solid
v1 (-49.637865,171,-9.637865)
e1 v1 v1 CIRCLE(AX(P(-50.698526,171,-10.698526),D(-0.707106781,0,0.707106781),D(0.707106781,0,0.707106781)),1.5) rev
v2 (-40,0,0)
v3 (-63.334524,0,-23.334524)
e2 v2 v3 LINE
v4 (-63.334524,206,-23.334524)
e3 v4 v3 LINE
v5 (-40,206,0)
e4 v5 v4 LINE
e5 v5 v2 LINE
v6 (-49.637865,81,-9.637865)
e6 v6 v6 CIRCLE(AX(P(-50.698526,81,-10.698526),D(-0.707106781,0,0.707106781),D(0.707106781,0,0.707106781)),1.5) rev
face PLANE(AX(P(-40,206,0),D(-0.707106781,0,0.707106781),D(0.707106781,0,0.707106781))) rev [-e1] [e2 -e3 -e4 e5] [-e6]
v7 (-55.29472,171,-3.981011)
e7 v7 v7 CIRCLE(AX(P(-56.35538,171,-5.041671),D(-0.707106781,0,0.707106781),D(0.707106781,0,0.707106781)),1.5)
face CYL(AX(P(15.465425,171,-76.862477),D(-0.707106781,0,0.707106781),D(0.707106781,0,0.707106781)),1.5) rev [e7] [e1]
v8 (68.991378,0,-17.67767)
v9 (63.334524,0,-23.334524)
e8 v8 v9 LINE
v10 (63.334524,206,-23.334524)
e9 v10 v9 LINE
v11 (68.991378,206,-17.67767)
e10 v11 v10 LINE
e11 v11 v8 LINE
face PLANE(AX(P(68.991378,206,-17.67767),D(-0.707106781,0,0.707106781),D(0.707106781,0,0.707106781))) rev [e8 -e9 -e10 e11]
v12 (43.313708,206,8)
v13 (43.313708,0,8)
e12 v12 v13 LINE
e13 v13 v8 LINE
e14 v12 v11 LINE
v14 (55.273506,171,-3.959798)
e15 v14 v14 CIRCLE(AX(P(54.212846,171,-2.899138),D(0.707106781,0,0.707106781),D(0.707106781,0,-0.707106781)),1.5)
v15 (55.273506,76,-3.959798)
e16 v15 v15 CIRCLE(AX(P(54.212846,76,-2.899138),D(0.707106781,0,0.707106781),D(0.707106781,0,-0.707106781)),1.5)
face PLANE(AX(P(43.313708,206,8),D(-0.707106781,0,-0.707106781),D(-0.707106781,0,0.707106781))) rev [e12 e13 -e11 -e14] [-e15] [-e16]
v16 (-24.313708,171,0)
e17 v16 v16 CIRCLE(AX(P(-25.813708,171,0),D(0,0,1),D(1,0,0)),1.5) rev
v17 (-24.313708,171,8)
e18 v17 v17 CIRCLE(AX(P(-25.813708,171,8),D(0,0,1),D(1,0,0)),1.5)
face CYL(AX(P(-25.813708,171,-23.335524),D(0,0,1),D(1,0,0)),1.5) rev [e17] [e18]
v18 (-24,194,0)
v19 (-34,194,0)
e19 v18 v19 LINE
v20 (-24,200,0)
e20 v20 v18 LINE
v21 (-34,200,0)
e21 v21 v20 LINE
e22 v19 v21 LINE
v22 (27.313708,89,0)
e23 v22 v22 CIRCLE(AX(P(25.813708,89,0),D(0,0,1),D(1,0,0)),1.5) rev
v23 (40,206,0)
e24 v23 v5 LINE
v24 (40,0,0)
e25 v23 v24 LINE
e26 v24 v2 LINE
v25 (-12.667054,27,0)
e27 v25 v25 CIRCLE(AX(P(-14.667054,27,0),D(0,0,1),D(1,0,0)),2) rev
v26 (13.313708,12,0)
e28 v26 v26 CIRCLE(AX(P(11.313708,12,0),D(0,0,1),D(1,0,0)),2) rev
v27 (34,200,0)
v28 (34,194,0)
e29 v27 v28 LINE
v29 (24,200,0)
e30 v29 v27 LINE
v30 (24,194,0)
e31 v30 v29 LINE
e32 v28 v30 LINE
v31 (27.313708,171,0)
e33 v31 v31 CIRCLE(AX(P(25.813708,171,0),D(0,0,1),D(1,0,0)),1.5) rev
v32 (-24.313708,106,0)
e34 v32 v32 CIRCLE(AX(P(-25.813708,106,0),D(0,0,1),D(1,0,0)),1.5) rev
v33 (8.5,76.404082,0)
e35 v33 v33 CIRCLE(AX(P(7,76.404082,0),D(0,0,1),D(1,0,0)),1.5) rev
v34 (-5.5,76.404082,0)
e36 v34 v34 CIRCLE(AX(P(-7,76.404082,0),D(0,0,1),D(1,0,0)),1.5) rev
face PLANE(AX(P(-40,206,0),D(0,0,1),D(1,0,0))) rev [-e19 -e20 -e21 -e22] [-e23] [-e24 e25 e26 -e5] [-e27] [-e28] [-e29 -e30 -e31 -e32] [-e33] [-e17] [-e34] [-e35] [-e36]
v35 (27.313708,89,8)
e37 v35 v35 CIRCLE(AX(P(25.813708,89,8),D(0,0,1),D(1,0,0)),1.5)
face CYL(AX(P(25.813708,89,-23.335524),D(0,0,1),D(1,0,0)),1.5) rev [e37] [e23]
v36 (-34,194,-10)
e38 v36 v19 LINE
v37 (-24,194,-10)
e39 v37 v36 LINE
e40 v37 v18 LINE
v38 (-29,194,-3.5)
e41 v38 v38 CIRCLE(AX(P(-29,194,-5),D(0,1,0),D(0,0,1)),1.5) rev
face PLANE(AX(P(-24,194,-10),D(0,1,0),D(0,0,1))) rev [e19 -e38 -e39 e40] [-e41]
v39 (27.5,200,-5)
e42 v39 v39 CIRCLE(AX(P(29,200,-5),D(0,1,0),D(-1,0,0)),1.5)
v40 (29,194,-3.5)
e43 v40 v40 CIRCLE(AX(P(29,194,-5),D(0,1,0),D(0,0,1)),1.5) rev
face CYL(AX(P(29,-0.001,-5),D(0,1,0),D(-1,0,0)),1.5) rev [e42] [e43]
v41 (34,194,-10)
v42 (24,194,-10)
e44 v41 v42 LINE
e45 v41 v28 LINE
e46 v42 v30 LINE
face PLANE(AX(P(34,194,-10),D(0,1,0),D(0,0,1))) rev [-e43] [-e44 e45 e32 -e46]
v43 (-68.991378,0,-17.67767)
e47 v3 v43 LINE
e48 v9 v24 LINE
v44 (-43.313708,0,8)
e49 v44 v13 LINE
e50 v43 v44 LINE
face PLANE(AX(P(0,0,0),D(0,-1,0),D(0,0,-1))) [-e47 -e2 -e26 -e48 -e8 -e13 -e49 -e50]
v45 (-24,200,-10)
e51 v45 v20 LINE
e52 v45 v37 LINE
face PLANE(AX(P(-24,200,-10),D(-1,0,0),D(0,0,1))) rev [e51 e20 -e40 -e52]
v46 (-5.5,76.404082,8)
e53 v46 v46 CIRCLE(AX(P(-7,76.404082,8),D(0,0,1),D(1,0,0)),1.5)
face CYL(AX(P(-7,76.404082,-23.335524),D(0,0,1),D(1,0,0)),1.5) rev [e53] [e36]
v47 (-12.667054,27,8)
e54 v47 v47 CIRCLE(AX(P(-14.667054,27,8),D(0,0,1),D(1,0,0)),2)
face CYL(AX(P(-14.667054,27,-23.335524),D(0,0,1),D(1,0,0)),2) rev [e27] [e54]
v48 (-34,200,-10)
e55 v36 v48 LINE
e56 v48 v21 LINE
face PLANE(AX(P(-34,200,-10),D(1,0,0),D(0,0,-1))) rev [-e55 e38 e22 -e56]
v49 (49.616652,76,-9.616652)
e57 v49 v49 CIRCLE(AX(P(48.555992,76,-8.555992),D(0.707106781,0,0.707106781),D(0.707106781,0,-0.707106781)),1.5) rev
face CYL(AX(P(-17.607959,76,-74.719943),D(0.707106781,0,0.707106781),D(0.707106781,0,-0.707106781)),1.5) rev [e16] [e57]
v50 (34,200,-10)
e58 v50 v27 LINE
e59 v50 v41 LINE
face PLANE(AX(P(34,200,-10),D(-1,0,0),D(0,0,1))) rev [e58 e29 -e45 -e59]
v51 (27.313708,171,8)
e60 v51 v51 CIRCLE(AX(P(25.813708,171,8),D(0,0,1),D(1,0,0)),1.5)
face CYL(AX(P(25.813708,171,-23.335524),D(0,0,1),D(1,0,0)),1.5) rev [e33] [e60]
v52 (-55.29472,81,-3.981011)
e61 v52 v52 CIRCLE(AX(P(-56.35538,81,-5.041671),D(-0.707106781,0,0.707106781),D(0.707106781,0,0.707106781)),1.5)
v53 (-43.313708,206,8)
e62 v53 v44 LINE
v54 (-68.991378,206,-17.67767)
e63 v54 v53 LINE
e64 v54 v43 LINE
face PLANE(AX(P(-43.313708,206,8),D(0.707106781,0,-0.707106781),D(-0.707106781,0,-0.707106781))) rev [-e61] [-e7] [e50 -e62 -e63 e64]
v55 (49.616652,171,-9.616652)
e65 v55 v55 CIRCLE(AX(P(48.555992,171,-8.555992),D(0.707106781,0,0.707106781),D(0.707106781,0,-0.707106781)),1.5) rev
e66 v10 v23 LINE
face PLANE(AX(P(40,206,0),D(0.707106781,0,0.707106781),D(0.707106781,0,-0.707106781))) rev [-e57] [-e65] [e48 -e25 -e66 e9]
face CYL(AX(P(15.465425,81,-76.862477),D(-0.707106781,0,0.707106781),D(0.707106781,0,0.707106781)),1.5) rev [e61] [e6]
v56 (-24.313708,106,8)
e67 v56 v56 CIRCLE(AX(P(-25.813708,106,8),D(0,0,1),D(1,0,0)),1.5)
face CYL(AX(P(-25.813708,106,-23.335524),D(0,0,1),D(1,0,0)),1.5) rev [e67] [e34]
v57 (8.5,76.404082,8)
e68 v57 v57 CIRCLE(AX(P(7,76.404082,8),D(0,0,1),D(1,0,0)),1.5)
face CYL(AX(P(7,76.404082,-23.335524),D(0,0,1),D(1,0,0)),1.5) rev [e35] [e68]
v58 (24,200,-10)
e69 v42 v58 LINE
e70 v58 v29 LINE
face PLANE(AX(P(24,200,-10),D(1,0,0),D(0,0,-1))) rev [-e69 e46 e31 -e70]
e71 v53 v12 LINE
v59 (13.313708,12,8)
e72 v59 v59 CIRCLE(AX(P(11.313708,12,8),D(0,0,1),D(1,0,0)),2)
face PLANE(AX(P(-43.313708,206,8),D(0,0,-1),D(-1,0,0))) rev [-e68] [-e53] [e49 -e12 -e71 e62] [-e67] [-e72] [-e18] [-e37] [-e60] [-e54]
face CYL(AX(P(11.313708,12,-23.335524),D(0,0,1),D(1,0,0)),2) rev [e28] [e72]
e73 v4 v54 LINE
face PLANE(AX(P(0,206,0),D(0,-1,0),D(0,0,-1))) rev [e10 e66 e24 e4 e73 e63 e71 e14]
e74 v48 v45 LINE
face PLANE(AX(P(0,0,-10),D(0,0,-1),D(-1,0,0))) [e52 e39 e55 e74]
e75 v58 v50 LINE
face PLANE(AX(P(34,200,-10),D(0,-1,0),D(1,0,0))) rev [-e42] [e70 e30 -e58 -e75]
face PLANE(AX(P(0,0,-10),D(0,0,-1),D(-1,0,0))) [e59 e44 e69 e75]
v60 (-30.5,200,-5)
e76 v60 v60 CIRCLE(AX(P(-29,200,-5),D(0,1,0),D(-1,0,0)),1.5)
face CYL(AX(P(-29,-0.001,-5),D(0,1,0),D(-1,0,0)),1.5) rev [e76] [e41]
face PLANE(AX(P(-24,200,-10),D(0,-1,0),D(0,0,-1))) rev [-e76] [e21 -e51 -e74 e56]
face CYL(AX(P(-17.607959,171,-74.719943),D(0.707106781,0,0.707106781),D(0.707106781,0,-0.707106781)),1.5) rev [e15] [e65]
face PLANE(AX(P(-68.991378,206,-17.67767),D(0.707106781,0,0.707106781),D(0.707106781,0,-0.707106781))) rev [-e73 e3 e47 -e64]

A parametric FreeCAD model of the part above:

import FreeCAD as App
import Part
import Sketcher

V = App.Vector
Q = App.Units.Quantity

doc = App.newDocument("Part")
params = doc.addObject("Spreadsheet::Sheet", "Params")
for row, (alias, value) in enumerate([
    ("sketch1_width", "80 mm"),
    ("sketch1_length", "33 mm"),
    ("sketch1_length2", "8 mm"),
    ("pad1_length", "206 mm"),
    ("sketch2_width", "10 mm"),
    ("sketch2_height", "6 mm"),
    ("pad2_length", "10 mm"),
    ("sketch3_diameter", "3 mm"),
    ("sketch4_diameter", "3 mm"),
    ("sketch5_diameter", "4 mm"),
    ("sketch6_diameter", "4 mm"),
    ("sketch7_diameter", "3 mm"),
    ("sketch8_diameter", "3 mm"),
    ("sketch9_diameter", "3 mm"),
    ("sketch10_diameter", "3 mm"),
    ("sketch11_diameter", "3 mm"),
    ("sketch12_diameter", "3 mm"),
    ("sketch13_diameter", "3 mm"),
    ("sketch14_diameter", "3 mm"),
    ("sketch15_diameter", "3 mm"),
    ("sketch16_diameter", "3 mm"),
], start=1):
    params.set(f"A{row}", alias)
    params.set(f"B{row}", "=" + value)
    params.setAlias(f"B{row}", alias)

body = doc.addObject("PartDesign::Body", "Body")

# Sketch on XZ plane
sketch1 = body.newObject("Sketcher::SketchObject", "Sketch")
sketch1.AttachmentSupport = (doc.getObject("XZ_Plane"), [""])
sketch1.MapMode = "FlatFace"
sketch1.addGeometry(Part.LineSegment(V(40, 0, 0), V(-40, 0, 0)), False)
sketch1.addGeometry(Part.LineSegment(V(-40, 0, 0), V(-63, -23, 0)), False)
sketch1.addGeometry(Part.LineSegment(V(-63, -23, 0), V(-69, -18, 0)), False)
sketch1.addGeometry(Part.LineSegment(V(-69, -18, 0), V(-43, 8, 0)), False)
sketch1.addGeometry(Part.LineSegment(V(-43, 8, 0), V(43, 8, 0)), False)
sketch1.addGeometry(Part.LineSegment(V(43, 8, 0), V(69, -18, 0)), False)
sketch1.addGeometry(Part.LineSegment(V(69, -18, 0), V(63, -23, 0)), False)
sketch1.addGeometry(Part.LineSegment(V(63, -23, 0), V(40, 0, 0)), False)
sketch1.addConstraint(Sketcher.Constraint("Coincident", 0, 2, 1, 1))
sketch1.addConstraint(Sketcher.Constraint("Coincident", 1, 2, 2, 1))
sketch1.addConstraint(Sketcher.Constraint("Coincident", 2, 2, 3, 1))
sketch1.addConstraint(Sketcher.Constraint("Coincident", 3, 2, 4, 1))
sketch1.addConstraint(Sketcher.Constraint("Coincident", 4, 2, 5, 1))
sketch1.addConstraint(Sketcher.Constraint("Coincident", 5, 2, 6, 1))
sketch1.addConstraint(Sketcher.Constraint("Coincident", 6, 2, 7, 1))
sketch1.addConstraint(Sketcher.Constraint("Coincident", 7, 2, 0, 1))
sketch1.addConstraint(Sketcher.Constraint("Horizontal", 0))
sketch1.addConstraint(Sketcher.Constraint("Horizontal", 4))
sketch1.addConstraint(Sketcher.Constraint("Symmetric", 0, 2, 7, 2, -1, 1))
sketch1.addConstraint(Sketcher.Constraint("Symmetric", 2, 2, 5, 2, -2))
sketch1.addConstraint(Sketcher.Constraint("Symmetric", 1, 2, 6, 2, -2))
sketch1.addConstraint(Sketcher.Constraint("Perpendicular", 1, 2))
sketch1.addConstraint(Sketcher.Constraint("Perpendicular", 2, 3))
sketch1.addConstraint(Sketcher.Constraint("Perpendicular", 3, 5))
sketch1.addConstraint(Sketcher.Constraint("Perpendicular", 5, 6))
sketch1.addConstraint(Sketcher.Constraint("DistanceX", 0, 2, 0, 1, Q("80 mm")))
sketch1.addConstraint(Sketcher.Constraint("Distance", 1, Q("33 mm")))
sketch1.addConstraint(Sketcher.Constraint("Distance", 2, Q("8 mm")))
sketch1.addConstraint(Sketcher.Constraint("DistanceY", -1, 1, 3, 2, Q("8 mm")))
sketch1.setExpression("Constraints[17]", "Params.sketch1_width")
sketch1.setExpression("Constraints[18]", "Params.sketch1_length")
sketch1.setExpression("Constraints[19]", "Params.sketch1_length2")
pad1 = body.newObject("PartDesign::Pad", "Pad")
pad1.Profile = sketch1
pad1.setExpression("Length", "Params.pad1_length")
pad1.Reversed = True

# Sketch on XY plane
sketch2 = body.newObject("Sketcher::SketchObject", "Sketch001")
sketch2.AttachmentSupport = (doc.getObject("XY_Plane"), [""])
sketch2.MapMode = "FlatFace"
sketch2.addGeometry(Part.LineSegment(V(34, 200, 0), V(34, 194, 0)), False)
sketch2.addGeometry(Part.LineSegment(V(34, 194, 0), V(24, 194, 0)), False)
sketch2.addGeometry(Part.LineSegment(V(24, 194, 0), V(24, 200, 0)), False)
sketch2.addGeometry(Part.LineSegment(V(24, 200, 0), V(34, 200, 0)), False)
sketch2.addGeometry(Part.LineSegment(V(-24, 200, 0), V(-24, 194, 0)), False)
sketch2.addGeometry(Part.LineSegment(V(-24, 194, 0), V(-34, 194, 0)), False)
sketch2.addGeometry(Part.LineSegment(V(-34, 194, 0), V(-34, 200, 0)), False)
sketch2.addGeometry(Part.LineSegment(V(-34, 200, 0), V(-24, 200, 0)), False)
sketch2.addConstraint(Sketcher.Constraint("Coincident", 0, 2, 1, 1))
sketch2.addConstraint(Sketcher.Constraint("Coincident", 1, 2, 2, 1))
sketch2.addConstraint(Sketcher.Constraint("Coincident", 2, 2, 3, 1))
sketch2.addConstraint(Sketcher.Constraint("Coincident", 3, 2, 0, 1))
sketch2.addConstraint(Sketcher.Constraint("Coincident", 4, 2, 5, 1))
sketch2.addConstraint(Sketcher.Constraint("Coincident", 5, 2, 6, 1))
sketch2.addConstraint(Sketcher.Constraint("Coincident", 6, 2, 7, 1))
sketch2.addConstraint(Sketcher.Constraint("Coincident", 7, 2, 4, 1))
sketch2.addConstraint(Sketcher.Constraint("Vertical", 0))
sketch2.addConstraint(Sketcher.Constraint("Horizontal", 1))
sketch2.addConstraint(Sketcher.Constraint("Vertical", 2))
sketch2.addConstraint(Sketcher.Constraint("Horizontal", 3))
sketch2.addConstraint(Sketcher.Constraint("Vertical", 4))
sketch2.addConstraint(Sketcher.Constraint("Horizontal", 5))
sketch2.addConstraint(Sketcher.Constraint("Vertical", 6))
sketch2.addConstraint(Sketcher.Constraint("Horizontal", 7))
sketch2.addConstraint(Sketcher.Constraint("Symmetric", 1, 2, 4, 2, -2))
sketch2.addConstraint(Sketcher.Constraint("Symmetric", 3, 2, 6, 2, -2))
sketch2.addConstraint(Sketcher.Constraint("DistanceX", 1, 2, 1, 1, Q("10 mm")))
sketch2.addConstraint(Sketcher.Constraint("DistanceY", 0, 2, 0, 1, Q("6 mm")))
sketch2.addConstraint(Sketcher.Constraint("DistanceX", -1, 1, 0, 2, Q("34 mm")))
sketch2.addConstraint(Sketcher.Constraint("DistanceY", -1, 1, 0, 2, Q("194 mm")))
sketch2.setExpression("Constraints[18]", "Params.sketch2_width")
sketch2.setExpression("Constraints[19]", "Params.sketch2_height")
pad2 = body.newObject("PartDesign::Pad", "Pad001")
pad2.Profile = sketch2
pad2.setExpression("Length", "Params.pad2_length")
pad2.Reversed = True

# Sketch on XZ plane
sketch3 = body.newObject("Sketcher::SketchObject", "Sketch002")
sketch3.AttachmentSupport = (doc.getObject("XZ_Plane"), [""])
sketch3.MapMode = "FlatFace"
sketch3.AttachmentOffset = App.Placement(V(0, 0, -200), App.Rotation())
sketch3.addGeometry(Part.Circle(V(-29, -5, 0), V(0, 0, 1), 1.5), False)
sketch3.addConstraint(Sketcher.Constraint("Diameter", 0, Q("3 mm")))
sketch3.addConstraint(Sketcher.Constraint("DistanceX", 0, 3, -1, 1, Q("29 mm")))
sketch3.addConstraint(Sketcher.Constraint("DistanceY", 0, 3, -1, 1, Q("5 mm")))
sketch3.setExpression("Constraints[0]", "Params.sketch3_diameter")
pocket1 = body.newObject("PartDesign::Pocket", "Pocket")
pocket1.Profile = sketch3
pocket1.Type = "UpToFirst"
pocket1.Reversed = True

# Sketch on XZ plane
sketch4 = body.newObject("Sketcher::SketchObject", "Sketch003")
sketch4.AttachmentSupport = (doc.getObject("XZ_Plane"), [""])
sketch4.MapMode = "FlatFace"
sketch4.AttachmentOffset = App.Placement(V(0, 0, -200), App.Rotation())
sketch4.addGeometry(Part.Circle(V(29, -5, 0), V(0, 0, 1), 1.5), False)
sketch4.addConstraint(Sketcher.Constraint("Diameter", 0, Q("3 mm")))
sketch4.addConstraint(Sketcher.Constraint("DistanceX", -1, 1, 0, 3, Q("29 mm")))
sketch4.addConstraint(Sketcher.Constraint("DistanceY", 0, 3, -1, 1, Q("5 mm")))
sketch4.setExpression("Constraints[0]", "Params.sketch4_diameter")
pocket2 = body.newObject("PartDesign::Pocket", "Pocket001")
pocket2.Profile = sketch4
pocket2.Type = "UpToFirst"
pocket2.Reversed = True

# Sketch on XY plane
sketch5 = body.newObject("Sketcher::SketchObject", "Sketch004")
sketch5.AttachmentSupport = (doc.getObject("XY_Plane"), [""])
sketch5.MapMode = "FlatFace"
sketch5.AttachmentOffset = App.Placement(V(0, 0, 8), App.Rotation())
sketch5.addGeometry(Part.Circle(V(-14.7, 27, 0), V(0, 0, 1), 2), False)
sketch5.addConstraint(Sketcher.Constraint("Diameter", 0, Q("4 mm")))
sketch5.addConstraint(Sketcher.Constraint("DistanceY", -1, 1, 0, 3, Q("27 mm")))
sketch5.addConstraint(Sketcher.Constraint("DistanceX", 0, 3, -1, 1, Q("14.667054 mm")))
sketch5.setExpression("Constraints[0]", "Params.sketch5_diameter")
pocket3 = body.newObject("PartDesign::Pocket", "Pocket002")
pocket3.Profile = sketch5
pocket3.Type = "UpToFirst"

# Sketch on XY plane
sketch6 = body.newObject("Sketcher::SketchObject", "Sketch005")
sketch6.AttachmentSupport = (doc.getObject("XY_Plane"), [""])
sketch6.MapMode = "FlatFace"
sketch6.AttachmentOffset = App.Placement(V(0, 0, 8), App.Rotation())
sketch6.addGeometry(Part.Circle(V(11.3, 12, 0), V(0, 0, 1), 2), False)
sketch6.addConstraint(Sketcher.Constraint("Diameter", 0, Q("4 mm")))
sketch6.addConstraint(Sketcher.Constraint("DistanceY", -1, 1, 0, 3, Q("12 mm")))
sketch6.addConstraint(Sketcher.Constraint("DistanceX", -1, 1, 0, 3, Q("11.313708 mm")))
sketch6.setExpression("Constraints[0]", "Params.sketch6_diameter")
pocket4 = body.newObject("PartDesign::Pocket", "Pocket003")
pocket4.Profile = sketch6
pocket4.Type = "UpToFirst"

# Sketch on XY plane
sketch7 = body.newObject("Sketcher::SketchObject", "Sketch006")
sketch7.AttachmentSupport = (doc.getObject("XY_Plane"), [""])
sketch7.MapMode = "FlatFace"
sketch7.AttachmentOffset = App.Placement(V(0, 0, 8), App.Rotation())
sketch7.addGeometry(Part.Circle(V(-7, 76.4, 0), V(0, 0, 1), 1.5), False)
sketch7.addConstraint(Sketcher.Constraint("Diameter", 0, Q("3 mm")))
sketch7.addConstraint(Sketcher.Constraint("DistanceX", 0, 3, -1, 1, Q("7 mm")))
sketch7.addConstraint(Sketcher.Constraint("DistanceY", -1, 1, 0, 3, Q("76.404082 mm")))
sketch7.setExpression("Constraints[0]", "Params.sketch7_diameter")
pocket5 = body.newObject("PartDesign::Pocket", "Pocket004")
pocket5.Profile = sketch7
pocket5.Type = "UpToFirst"

# Sketch on XY plane
sketch8 = body.newObject("Sketcher::SketchObject", "Sketch007")
sketch8.AttachmentSupport = (doc.getObject("XY_Plane"), [""])
sketch8.MapMode = "FlatFace"
sketch8.AttachmentOffset = App.Placement(V(0, 0, 8), App.Rotation())
sketch8.addGeometry(Part.Circle(V(7, 76.4, 0), V(0, 0, 1), 1.5), False)
sketch8.addConstraint(Sketcher.Constraint("Diameter", 0, Q("3 mm")))
sketch8.addConstraint(Sketcher.Constraint("DistanceX", -1, 1, 0, 3, Q("7 mm")))
sketch8.addConstraint(Sketcher.Constraint("DistanceY", -1, 1, 0, 3, Q("76.404082 mm")))
sketch8.setExpression("Constraints[0]", "Params.sketch8_diameter")
pocket6 = body.newObject("PartDesign::Pocket", "Pocket005")
pocket6.Profile = sketch8
pocket6.Type = "UpToFirst"

# Sketch on XY plane
sketch9 = body.newObject("Sketcher::SketchObject", "Sketch008")
sketch9.AttachmentSupport = (doc.getObject("XY_Plane"), [""])
sketch9.MapMode = "FlatFace"
sketch9.AttachmentOffset = App.Placement(V(0, 0, 8), App.Rotation())
sketch9.addGeometry(Part.Circle(V(-25.8, 171, 0), V(0, 0, 1), 1.5), False)
sketch9.addConstraint(Sketcher.Constraint("Diameter", 0, Q("3 mm")))
sketch9.addConstraint(Sketcher.Constraint("DistanceY", -1, 1, 0, 3, Q("171 mm")))
sketch9.addConstraint(Sketcher.Constraint("DistanceX", 0, 3, -1, 1, Q("25.813708 mm")))
sketch9.setExpression("Constraints[0]", "Params.sketch9_diameter")
pocket7 = body.newObject("PartDesign::Pocket", "Pocket006")
pocket7.Profile = sketch9
pocket7.Type = "UpToFirst"

# Sketch on XY plane
sketch10 = body.newObject("Sketcher::SketchObject", "Sketch009")
sketch10.AttachmentSupport = (doc.getObject("XY_Plane"), [""])
sketch10.MapMode = "FlatFace"
sketch10.AttachmentOffset = App.Placement(V(0, 0, 8), App.Rotation())
sketch10.addGeometry(Part.Circle(V(25.8, 171, 0), V(0, 0, 1), 1.5), False)
sketch10.addConstraint(Sketcher.Constraint("Diameter", 0, Q("3 mm")))
sketch10.addConstraint(Sketcher.Constraint("DistanceY", -1, 1, 0, 3, Q("171 mm")))
sketch10.addConstraint(Sketcher.Constraint("DistanceX", -1, 1, 0, 3, Q("25.813708 mm")))
sketch10.setExpression("Constraints[0]", "Params.sketch10_diameter")
pocket8 = body.newObject("PartDesign::Pocket", "Pocket007")
pocket8.Profile = sketch10
pocket8.Type = "UpToFirst"

# Sketch on XY plane
sketch11 = body.newObject("Sketcher::SketchObject", "Sketch010")
sketch11.AttachmentSupport = (doc.getObject("XY_Plane"), [""])
sketch11.MapMode = "FlatFace"
sketch11.AttachmentOffset = App.Placement(V(0, 0, 8), App.Rotation())
sketch11.addGeometry(Part.Circle(V(-25.8, 106, 0), V(0, 0, 1), 1.5), False)
sketch11.addConstraint(Sketcher.Constraint("Diameter", 0, Q("3 mm")))
sketch11.addConstraint(Sketcher.Constraint("DistanceY", -1, 1, 0, 3, Q("106 mm")))
sketch11.addConstraint(Sketcher.Constraint("DistanceX", 0, 3, -1, 1, Q("25.813708 mm")))
sketch11.setExpression("Constraints[0]", "Params.sketch11_diameter")
pocket9 = body.newObject("PartDesign::Pocket", "Pocket008")
pocket9.Profile = sketch11
pocket9.Type = "UpToFirst"

# Sketch on XY plane
sketch12 = body.newObject("Sketcher::SketchObject", "Sketch011")
sketch12.AttachmentSupport = (doc.getObject("XY_Plane"), [""])
sketch12.MapMode = "FlatFace"
sketch12.AttachmentOffset = App.Placement(V(0, 0, 8), App.Rotation())
sketch12.addGeometry(Part.Circle(V(25.8, 89, 0), V(0, 0, 1), 1.5), False)
sketch12.addConstraint(Sketcher.Constraint("Diameter", 0, Q("3 mm")))
sketch12.addConstraint(Sketcher.Constraint("DistanceY", -1, 1, 0, 3, Q("89 mm")))
sketch12.addConstraint(Sketcher.Constraint("DistanceX", -1, 1, 0, 3, Q("25.813708 mm")))
sketch12.setExpression("Constraints[0]", "Params.sketch12_diameter")
pocket10 = body.newObject("PartDesign::Pocket", "Pocket009")
pocket10.Profile = sketch12
pocket10.Type = "UpToFirst"

# Sketch on an angled plane
sketch13 = body.newObject("Sketcher::SketchObject", "Sketch012")
sketch13.Placement = App.Placement(V(-25.656854, 0, 25.656854), App.Rotation(V(0.707106781, 0, 0.707106781), V(0, 0.999999999, 0), V(-0.707106781, 0, 0.707106781), "ZXY"))
sketch13.addGeometry(Part.Circle(V(-43.4, 171, 0), V(0, 0, 1), 1.5), False)
sketch13.addConstraint(Sketcher.Constraint("Diameter", 0, Q("3 mm")))
sketch13.addConstraint(Sketcher.Constraint("DistanceY", -1, 1, 0, 3, Q("171 mm")))
sketch13.addConstraint(Sketcher.Constraint("DistanceX", 0, 3, -1, 1, Q("43.414271 mm")))
sketch13.setExpression("Constraints[0]", "Params.sketch13_diameter")
pocket11 = body.newObject("PartDesign::Pocket", "Pocket010")
pocket11.Profile = sketch13
pocket11.Type = "UpToFirst"

# Sketch on an angled plane
sketch14 = body.newObject("Sketcher::SketchObject", "Sketch013")
sketch14.Placement = App.Placement(V(-25.656854, 0, 25.656854), App.Rotation(V(0.707106781, 0, 0.707106781), V(0, 0.999999999, 0), V(-0.707106781, 0, 0.707106781), "ZXY"))
sketch14.addGeometry(Part.Circle(V(-43.4, 81, 0), V(0, 0, 1), 1.5), False)
sketch14.addConstraint(Sketcher.Constraint("Diameter", 0, Q("3 mm")))
sketch14.addConstraint(Sketcher.Constraint("DistanceY", -1, 1, 0, 3, Q("81 mm")))
sketch14.addConstraint(Sketcher.Constraint("DistanceX", 0, 3, -1, 1, Q("43.414271 mm")))
sketch14.setExpression("Constraints[0]", "Params.sketch14_diameter")
pocket12 = body.newObject("PartDesign::Pocket", "Pocket011")
pocket12.Profile = sketch14
pocket12.Type = "UpToFirst"

# Sketch on an angled plane
sketch15 = body.newObject("Sketcher::SketchObject", "Sketch014")
sketch15.Placement = App.Placement(V(25.656854, 0, 25.656854), App.Rotation(V(0.707106781, 0, -0.707106781), V(0, 0.999999999, 0), V(0.707106781, 0, 0.707106781), "ZXY"))
sketch15.addGeometry(Part.Circle(V(40.4, 171, 0), V(0, 0, 1), 1.5), False)
sketch15.addConstraint(Sketcher.Constraint("Diameter", 0, Q("3 mm")))
sketch15.addConstraint(Sketcher.Constraint("DistanceY", -1, 1, 0, 3, Q("171 mm")))
sketch15.addConstraint(Sketcher.Constraint("DistanceX", -1, 1, 0, 3, Q("40.384271 mm")))
sketch15.setExpression("Constraints[0]", "Params.sketch15_diameter")
pocket13 = body.newObject("PartDesign::Pocket", "Pocket012")
pocket13.Profile = sketch15
pocket13.Type = "UpToFirst"

# Sketch on an angled plane
sketch16 = body.newObject("Sketcher::SketchObject", "Sketch015")
sketch16.Placement = App.Placement(V(25.656854, 0, 25.656854), App.Rotation(V(0.707106781, 0, -0.707106781), V(0, 0.999999999, 0), V(0.707106781, 0, 0.707106781), "ZXY"))
sketch16.addGeometry(Part.Circle(V(40.4, 76, 0), V(0, 0, 1), 1.5), False)
sketch16.addConstraint(Sketcher.Constraint("Diameter", 0, Q("3 mm")))
sketch16.addConstraint(Sketcher.Constraint("DistanceY", -1, 1, 0, 3, Q("76 mm")))
sketch16.addConstraint(Sketcher.Constraint("DistanceX", -1, 1, 0, 3, Q("40.384271 mm")))
sketch16.setExpression("Constraints[0]", "Params.sketch16_diameter")
pocket14 = body.newObject("PartDesign::Pocket", "Pocket013")
pocket14.Profile = sketch16
pocket14.Type = "UpToFirst"

doc.recompute()
